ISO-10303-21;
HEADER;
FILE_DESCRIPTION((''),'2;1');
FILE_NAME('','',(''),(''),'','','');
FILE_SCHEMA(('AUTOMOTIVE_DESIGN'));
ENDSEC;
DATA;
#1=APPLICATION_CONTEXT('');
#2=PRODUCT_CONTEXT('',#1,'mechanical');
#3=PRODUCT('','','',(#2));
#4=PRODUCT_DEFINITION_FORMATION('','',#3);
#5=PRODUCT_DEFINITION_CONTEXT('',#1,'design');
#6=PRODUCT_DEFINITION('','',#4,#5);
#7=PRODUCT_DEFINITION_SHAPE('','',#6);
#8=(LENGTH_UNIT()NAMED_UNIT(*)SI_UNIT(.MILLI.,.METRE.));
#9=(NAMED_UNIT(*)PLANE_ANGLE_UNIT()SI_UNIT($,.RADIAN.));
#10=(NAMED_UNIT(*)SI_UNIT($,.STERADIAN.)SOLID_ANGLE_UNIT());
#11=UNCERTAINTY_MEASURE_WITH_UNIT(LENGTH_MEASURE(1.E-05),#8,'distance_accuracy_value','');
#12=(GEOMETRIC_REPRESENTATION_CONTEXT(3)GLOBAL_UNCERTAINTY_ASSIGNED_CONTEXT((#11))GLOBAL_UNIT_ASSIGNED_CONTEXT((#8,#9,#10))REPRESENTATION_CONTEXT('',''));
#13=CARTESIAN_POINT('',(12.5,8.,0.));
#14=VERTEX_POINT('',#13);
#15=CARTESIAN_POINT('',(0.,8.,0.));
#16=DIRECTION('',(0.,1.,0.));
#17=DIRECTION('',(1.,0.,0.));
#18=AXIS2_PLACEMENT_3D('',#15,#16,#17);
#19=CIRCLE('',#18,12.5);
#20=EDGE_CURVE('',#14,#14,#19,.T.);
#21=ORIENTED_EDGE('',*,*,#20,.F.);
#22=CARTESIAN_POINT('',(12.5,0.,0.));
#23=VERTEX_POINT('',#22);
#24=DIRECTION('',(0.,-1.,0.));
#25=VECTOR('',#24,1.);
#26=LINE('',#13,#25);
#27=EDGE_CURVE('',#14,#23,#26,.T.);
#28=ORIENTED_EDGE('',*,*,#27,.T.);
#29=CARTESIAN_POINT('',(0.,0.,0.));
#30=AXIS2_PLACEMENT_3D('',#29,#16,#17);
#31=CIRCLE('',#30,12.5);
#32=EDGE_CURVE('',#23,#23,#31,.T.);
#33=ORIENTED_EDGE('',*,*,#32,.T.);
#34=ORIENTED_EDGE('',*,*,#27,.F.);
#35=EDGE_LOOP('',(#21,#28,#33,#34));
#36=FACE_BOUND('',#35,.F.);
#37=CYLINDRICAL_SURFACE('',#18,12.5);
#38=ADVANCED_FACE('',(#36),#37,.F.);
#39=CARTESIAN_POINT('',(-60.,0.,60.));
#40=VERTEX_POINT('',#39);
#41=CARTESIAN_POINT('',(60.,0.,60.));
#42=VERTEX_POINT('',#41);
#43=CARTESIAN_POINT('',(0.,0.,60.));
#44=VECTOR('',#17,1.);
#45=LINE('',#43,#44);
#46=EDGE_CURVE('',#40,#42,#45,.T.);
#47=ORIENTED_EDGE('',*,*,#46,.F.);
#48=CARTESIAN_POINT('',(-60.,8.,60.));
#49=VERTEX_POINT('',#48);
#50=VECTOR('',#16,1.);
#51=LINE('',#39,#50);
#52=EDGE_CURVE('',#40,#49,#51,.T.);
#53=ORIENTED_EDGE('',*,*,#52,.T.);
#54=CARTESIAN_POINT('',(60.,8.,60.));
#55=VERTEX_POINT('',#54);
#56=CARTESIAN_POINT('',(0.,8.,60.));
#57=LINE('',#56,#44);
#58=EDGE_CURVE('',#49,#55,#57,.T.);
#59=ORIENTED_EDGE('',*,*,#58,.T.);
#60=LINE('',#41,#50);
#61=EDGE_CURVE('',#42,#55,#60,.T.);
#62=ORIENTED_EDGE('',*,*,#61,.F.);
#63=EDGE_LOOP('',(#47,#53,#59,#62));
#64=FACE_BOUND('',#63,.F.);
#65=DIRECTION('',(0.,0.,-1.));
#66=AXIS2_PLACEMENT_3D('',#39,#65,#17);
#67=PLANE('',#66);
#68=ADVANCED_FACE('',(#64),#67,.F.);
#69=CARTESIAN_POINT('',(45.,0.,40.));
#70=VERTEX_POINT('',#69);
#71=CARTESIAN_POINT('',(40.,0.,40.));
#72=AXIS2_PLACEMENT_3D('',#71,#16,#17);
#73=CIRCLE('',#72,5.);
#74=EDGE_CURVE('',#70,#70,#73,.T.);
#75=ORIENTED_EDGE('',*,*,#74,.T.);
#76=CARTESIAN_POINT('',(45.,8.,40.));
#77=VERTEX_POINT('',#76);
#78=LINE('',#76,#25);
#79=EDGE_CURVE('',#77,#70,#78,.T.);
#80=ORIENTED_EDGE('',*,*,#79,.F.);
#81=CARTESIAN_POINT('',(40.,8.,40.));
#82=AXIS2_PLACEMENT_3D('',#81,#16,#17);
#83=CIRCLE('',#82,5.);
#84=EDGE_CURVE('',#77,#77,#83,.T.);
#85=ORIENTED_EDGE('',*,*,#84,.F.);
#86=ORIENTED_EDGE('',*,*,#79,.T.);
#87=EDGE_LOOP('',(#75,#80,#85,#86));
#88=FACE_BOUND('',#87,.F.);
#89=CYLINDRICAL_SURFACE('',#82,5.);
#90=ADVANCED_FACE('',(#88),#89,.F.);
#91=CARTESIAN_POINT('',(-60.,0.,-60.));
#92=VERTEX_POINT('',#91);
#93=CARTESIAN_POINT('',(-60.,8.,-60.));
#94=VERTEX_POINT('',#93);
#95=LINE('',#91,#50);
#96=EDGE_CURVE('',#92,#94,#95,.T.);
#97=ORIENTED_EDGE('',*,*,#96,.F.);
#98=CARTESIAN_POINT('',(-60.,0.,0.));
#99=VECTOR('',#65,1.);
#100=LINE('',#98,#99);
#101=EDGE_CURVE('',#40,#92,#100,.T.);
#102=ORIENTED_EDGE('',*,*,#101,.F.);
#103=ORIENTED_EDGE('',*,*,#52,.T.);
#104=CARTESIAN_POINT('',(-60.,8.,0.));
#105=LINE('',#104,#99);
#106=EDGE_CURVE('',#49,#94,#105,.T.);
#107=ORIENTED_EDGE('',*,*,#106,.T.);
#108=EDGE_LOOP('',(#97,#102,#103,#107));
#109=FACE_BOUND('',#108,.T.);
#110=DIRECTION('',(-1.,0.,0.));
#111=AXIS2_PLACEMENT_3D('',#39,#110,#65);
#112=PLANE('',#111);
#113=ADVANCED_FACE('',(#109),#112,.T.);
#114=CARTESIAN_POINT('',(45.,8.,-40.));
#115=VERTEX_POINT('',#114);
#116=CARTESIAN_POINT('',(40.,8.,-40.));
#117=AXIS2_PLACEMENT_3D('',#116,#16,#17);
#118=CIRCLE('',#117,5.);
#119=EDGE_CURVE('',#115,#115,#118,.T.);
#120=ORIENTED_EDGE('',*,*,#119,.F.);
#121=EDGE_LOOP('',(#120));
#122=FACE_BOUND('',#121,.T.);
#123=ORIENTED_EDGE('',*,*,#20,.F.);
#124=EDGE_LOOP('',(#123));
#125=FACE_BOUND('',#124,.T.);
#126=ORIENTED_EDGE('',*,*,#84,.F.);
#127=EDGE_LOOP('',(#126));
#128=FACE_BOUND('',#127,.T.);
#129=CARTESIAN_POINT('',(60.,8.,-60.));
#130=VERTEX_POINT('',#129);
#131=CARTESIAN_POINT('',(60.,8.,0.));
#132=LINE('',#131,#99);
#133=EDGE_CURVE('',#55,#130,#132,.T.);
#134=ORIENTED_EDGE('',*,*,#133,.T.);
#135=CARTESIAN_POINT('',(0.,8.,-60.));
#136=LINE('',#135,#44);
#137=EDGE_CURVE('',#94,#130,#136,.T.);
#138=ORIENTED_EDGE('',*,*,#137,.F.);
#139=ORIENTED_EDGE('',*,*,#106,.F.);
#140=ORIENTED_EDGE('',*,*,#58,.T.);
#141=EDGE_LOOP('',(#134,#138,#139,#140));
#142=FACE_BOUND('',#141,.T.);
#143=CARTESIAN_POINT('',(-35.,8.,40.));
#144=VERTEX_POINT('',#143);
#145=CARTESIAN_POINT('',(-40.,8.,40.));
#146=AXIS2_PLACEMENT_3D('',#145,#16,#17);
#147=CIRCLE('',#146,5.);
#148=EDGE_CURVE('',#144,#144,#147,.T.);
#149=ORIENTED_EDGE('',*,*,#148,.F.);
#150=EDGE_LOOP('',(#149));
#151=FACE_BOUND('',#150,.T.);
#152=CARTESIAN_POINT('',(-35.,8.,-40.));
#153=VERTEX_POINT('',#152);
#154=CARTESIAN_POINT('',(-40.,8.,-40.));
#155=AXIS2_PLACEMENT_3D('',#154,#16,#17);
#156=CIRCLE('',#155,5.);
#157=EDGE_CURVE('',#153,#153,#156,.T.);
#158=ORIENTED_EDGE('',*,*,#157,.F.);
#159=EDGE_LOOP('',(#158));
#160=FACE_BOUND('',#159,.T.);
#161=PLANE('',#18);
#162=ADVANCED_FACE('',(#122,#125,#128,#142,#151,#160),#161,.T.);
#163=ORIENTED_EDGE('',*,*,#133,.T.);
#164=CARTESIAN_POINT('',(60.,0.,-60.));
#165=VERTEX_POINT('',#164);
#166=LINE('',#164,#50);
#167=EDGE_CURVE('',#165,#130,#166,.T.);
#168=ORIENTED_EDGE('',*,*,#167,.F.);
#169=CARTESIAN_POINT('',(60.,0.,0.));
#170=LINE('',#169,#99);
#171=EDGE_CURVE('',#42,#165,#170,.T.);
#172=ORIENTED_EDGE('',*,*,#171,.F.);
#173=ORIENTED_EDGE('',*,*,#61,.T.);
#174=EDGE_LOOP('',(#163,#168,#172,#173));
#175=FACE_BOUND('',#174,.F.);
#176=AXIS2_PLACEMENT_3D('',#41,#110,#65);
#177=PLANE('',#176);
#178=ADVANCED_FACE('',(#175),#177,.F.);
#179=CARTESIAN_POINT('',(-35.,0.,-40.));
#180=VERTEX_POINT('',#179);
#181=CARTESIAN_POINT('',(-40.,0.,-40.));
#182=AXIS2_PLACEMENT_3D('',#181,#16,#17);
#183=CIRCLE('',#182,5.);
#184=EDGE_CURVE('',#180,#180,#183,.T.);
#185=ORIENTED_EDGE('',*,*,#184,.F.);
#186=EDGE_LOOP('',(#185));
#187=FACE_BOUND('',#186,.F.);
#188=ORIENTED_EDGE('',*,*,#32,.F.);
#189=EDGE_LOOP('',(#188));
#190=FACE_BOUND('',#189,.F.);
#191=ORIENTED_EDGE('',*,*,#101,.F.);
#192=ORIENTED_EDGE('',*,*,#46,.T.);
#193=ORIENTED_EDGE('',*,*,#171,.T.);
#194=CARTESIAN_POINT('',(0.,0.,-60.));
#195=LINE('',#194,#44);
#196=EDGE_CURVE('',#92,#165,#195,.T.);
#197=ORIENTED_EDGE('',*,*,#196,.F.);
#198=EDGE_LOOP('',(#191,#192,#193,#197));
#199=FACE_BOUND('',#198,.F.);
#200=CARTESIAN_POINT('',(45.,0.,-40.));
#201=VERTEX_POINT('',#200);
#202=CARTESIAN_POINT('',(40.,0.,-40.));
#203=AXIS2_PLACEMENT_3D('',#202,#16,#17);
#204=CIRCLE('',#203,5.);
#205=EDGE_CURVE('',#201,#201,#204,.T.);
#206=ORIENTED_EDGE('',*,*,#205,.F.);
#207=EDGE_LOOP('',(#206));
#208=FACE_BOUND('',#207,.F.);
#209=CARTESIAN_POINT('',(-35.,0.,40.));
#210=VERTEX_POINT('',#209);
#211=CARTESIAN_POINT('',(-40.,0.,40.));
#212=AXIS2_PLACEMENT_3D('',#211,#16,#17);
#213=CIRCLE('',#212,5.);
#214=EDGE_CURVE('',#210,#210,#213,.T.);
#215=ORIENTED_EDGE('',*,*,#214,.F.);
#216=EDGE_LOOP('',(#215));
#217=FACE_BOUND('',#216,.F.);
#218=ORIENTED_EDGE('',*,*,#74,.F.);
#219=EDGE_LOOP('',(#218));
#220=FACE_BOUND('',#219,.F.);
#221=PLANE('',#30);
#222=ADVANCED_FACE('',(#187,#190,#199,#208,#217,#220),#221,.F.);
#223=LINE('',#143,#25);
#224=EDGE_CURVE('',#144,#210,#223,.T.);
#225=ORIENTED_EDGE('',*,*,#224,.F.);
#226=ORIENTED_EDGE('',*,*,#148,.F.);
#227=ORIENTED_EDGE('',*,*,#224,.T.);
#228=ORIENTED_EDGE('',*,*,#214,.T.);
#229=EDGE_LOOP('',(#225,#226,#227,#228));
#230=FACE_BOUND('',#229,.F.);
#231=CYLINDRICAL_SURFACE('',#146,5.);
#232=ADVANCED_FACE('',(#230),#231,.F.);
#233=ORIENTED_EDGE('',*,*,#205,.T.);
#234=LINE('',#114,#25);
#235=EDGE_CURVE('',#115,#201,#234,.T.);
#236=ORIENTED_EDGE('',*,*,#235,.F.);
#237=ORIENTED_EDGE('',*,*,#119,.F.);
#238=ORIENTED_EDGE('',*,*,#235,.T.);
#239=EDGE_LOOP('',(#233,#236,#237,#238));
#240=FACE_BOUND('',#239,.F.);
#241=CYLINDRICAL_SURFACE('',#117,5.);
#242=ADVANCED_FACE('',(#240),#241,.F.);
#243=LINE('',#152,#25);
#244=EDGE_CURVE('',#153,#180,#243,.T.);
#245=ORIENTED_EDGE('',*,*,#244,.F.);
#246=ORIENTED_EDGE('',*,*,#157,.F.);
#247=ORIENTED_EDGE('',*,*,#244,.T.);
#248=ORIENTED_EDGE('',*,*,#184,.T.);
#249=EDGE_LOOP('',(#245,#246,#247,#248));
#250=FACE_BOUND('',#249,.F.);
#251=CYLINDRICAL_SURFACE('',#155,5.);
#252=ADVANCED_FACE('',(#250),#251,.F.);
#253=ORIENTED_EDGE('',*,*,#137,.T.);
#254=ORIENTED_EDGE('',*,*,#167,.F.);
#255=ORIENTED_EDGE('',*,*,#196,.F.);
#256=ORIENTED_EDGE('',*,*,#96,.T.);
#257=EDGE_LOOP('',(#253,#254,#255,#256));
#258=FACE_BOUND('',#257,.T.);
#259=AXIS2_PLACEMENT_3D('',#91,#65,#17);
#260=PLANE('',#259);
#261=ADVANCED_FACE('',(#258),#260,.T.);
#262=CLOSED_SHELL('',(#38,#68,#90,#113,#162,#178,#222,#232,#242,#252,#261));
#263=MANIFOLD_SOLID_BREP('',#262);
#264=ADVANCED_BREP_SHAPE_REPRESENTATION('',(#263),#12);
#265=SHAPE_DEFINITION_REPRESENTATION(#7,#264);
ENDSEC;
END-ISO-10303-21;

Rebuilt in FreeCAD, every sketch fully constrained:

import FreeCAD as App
import Part
import Sketcher

V = App.Vector

doc = App.newDocument("Part")
body = doc.addObject("PartDesign::Body", "Body")

sketch1 = body.newObject("Sketcher::SketchObject", "Sketch")
sketch1.AttachmentSupport = (doc.getObject("XZ_Plane"), [""])
sketch1.MapMode = "FlatFace"
sketch1.addGeometry(Part.LineSegment(V(-60, -60, 0), V(-60, 60, 0)), False)
sketch1.addGeometry(Part.LineSegment(V(-60, 60, 0), V(60, 60, 0)), False)
sketch1.addGeometry(Part.LineSegment(V(60, 60, 0), V(60, -60, 0)), False)
sketch1.addGeometry(Part.LineSegment(V(60, -60, 0), V(-60, -60, 0)), False)
sketch1.addConstraint(Sketcher.Constraint("Coincident", 0, 2, 1, 1))
sketch1.addConstraint(Sketcher.Constraint("Coincident", 1, 2, 2, 1))
sketch1.addConstraint(Sketcher.Constraint("Coincident", 2, 2, 3, 1))
sketch1.addConstraint(Sketcher.Constraint("Coincident", 3, 2, 0, 1))
sketch1.addConstraint(Sketcher.Constraint("Vertical", 0))
sketch1.addConstraint(Sketcher.Constraint("Horizontal", 1))
sketch1.addConstraint(Sketcher.Constraint("Vertical", 2))
sketch1.addConstraint(Sketcher.Constraint("Horizontal", 3))
sketch1.addConstraint(Sketcher.Constraint("Symmetric", 0, 2, 2, 2, -1, 1))
sketch1.addConstraint(Sketcher.Constraint("Equal", 3, 0))
sketch1.addConstraint(Sketcher.Constraint("DistanceX", 1, 1, 1, 2, 120.0))
pad1 = body.newObject("PartDesign::Pad", "Pad")
pad1.Profile = sketch1
pad1.Length = 8
pad1.Reversed = True

sketch2 = body.newObject("Sketcher::SketchObject", "Sketch001")
sketch2.AttachmentSupport = (doc.getObject("XZ_Plane"), [""])
sketch2.MapMode = "FlatFace"
sketch2.AttachmentOffset = App.Placement(V(0, 0, -8), App.Rotation())
sketch2.addGeometry(Part.Circle(V(0, 0, 0), V(0, 0, 1), 12), False)
sketch2.addConstraint(Sketcher.Constraint("Coincident", 0, 3, -1, 1))
sketch2.addConstraint(Sketcher.Constraint("Diameter", 0, 25.0))
pocket1 = body.newObject("PartDesign::Pocket", "Pocket")
pocket1.Profile = sketch2
pocket1.Type = "ThroughAll"
pocket1.Reversed = True

sketch3 = body.newObject("Sketcher::SketchObject", "Sketch002")
sketch3.AttachmentSupport = (doc.getObject("XZ_Plane"), [""])
sketch3.MapMode = "FlatFace"
sketch3.AttachmentOffset = App.Placement(V(0, 0, -8), App.Rotation())
sketch3.addGeometry(Part.Circle(V(-40, -40, 0), V(0, 0, 1), 5), False)
sketch3.addGeometry(Part.Circle(V(40, -40, 0), V(0, 0, 1), 5), False)
sketch3.addGeometry(Part.Circle(V(40, 40, 0), V(0, 0, 1), 5), False)
sketch3.addGeometry(Part.Circle(V(-40, 40, 0), V(0, 0, 1), 5), False)
sketch3.addConstraint(Sketcher.Constraint("Equal", 0, 1))
sketch3.addConstraint(Sketcher.Constraint("Equal", 1, 2))
sketch3.addConstraint(Sketcher.Constraint("Equal", 2, 3))
sketch3.addConstraint(Sketcher.Constraint("Symmetric", 0, 3, 2, 3, -1, 1))
sketch3.addConstraint(Sketcher.Constraint("Symmetric", 1, 3, 3, 3, -1, 1))
sketch3.addConstraint(Sketcher.Constraint("Symmetric", 0, 3, 1, 3, -2))
sketch3.addConstraint(Sketcher.Constraint("Diameter", 0, 10.0))
sketch3.addConstraint(Sketcher.Constraint("DistanceX", 0, 3, -1, 1, 40.0))
sketch3.addConstraint(Sketcher.Constraint("DistanceY", 0, 3, -1, 1, 40.0))
pocket2 = body.newObject("PartDesign::Pocket", "Pocket001")
pocket2.Profile = sketch3
pocket2.Length = 10
pocket2.Reversed = True

doc.recompute()
